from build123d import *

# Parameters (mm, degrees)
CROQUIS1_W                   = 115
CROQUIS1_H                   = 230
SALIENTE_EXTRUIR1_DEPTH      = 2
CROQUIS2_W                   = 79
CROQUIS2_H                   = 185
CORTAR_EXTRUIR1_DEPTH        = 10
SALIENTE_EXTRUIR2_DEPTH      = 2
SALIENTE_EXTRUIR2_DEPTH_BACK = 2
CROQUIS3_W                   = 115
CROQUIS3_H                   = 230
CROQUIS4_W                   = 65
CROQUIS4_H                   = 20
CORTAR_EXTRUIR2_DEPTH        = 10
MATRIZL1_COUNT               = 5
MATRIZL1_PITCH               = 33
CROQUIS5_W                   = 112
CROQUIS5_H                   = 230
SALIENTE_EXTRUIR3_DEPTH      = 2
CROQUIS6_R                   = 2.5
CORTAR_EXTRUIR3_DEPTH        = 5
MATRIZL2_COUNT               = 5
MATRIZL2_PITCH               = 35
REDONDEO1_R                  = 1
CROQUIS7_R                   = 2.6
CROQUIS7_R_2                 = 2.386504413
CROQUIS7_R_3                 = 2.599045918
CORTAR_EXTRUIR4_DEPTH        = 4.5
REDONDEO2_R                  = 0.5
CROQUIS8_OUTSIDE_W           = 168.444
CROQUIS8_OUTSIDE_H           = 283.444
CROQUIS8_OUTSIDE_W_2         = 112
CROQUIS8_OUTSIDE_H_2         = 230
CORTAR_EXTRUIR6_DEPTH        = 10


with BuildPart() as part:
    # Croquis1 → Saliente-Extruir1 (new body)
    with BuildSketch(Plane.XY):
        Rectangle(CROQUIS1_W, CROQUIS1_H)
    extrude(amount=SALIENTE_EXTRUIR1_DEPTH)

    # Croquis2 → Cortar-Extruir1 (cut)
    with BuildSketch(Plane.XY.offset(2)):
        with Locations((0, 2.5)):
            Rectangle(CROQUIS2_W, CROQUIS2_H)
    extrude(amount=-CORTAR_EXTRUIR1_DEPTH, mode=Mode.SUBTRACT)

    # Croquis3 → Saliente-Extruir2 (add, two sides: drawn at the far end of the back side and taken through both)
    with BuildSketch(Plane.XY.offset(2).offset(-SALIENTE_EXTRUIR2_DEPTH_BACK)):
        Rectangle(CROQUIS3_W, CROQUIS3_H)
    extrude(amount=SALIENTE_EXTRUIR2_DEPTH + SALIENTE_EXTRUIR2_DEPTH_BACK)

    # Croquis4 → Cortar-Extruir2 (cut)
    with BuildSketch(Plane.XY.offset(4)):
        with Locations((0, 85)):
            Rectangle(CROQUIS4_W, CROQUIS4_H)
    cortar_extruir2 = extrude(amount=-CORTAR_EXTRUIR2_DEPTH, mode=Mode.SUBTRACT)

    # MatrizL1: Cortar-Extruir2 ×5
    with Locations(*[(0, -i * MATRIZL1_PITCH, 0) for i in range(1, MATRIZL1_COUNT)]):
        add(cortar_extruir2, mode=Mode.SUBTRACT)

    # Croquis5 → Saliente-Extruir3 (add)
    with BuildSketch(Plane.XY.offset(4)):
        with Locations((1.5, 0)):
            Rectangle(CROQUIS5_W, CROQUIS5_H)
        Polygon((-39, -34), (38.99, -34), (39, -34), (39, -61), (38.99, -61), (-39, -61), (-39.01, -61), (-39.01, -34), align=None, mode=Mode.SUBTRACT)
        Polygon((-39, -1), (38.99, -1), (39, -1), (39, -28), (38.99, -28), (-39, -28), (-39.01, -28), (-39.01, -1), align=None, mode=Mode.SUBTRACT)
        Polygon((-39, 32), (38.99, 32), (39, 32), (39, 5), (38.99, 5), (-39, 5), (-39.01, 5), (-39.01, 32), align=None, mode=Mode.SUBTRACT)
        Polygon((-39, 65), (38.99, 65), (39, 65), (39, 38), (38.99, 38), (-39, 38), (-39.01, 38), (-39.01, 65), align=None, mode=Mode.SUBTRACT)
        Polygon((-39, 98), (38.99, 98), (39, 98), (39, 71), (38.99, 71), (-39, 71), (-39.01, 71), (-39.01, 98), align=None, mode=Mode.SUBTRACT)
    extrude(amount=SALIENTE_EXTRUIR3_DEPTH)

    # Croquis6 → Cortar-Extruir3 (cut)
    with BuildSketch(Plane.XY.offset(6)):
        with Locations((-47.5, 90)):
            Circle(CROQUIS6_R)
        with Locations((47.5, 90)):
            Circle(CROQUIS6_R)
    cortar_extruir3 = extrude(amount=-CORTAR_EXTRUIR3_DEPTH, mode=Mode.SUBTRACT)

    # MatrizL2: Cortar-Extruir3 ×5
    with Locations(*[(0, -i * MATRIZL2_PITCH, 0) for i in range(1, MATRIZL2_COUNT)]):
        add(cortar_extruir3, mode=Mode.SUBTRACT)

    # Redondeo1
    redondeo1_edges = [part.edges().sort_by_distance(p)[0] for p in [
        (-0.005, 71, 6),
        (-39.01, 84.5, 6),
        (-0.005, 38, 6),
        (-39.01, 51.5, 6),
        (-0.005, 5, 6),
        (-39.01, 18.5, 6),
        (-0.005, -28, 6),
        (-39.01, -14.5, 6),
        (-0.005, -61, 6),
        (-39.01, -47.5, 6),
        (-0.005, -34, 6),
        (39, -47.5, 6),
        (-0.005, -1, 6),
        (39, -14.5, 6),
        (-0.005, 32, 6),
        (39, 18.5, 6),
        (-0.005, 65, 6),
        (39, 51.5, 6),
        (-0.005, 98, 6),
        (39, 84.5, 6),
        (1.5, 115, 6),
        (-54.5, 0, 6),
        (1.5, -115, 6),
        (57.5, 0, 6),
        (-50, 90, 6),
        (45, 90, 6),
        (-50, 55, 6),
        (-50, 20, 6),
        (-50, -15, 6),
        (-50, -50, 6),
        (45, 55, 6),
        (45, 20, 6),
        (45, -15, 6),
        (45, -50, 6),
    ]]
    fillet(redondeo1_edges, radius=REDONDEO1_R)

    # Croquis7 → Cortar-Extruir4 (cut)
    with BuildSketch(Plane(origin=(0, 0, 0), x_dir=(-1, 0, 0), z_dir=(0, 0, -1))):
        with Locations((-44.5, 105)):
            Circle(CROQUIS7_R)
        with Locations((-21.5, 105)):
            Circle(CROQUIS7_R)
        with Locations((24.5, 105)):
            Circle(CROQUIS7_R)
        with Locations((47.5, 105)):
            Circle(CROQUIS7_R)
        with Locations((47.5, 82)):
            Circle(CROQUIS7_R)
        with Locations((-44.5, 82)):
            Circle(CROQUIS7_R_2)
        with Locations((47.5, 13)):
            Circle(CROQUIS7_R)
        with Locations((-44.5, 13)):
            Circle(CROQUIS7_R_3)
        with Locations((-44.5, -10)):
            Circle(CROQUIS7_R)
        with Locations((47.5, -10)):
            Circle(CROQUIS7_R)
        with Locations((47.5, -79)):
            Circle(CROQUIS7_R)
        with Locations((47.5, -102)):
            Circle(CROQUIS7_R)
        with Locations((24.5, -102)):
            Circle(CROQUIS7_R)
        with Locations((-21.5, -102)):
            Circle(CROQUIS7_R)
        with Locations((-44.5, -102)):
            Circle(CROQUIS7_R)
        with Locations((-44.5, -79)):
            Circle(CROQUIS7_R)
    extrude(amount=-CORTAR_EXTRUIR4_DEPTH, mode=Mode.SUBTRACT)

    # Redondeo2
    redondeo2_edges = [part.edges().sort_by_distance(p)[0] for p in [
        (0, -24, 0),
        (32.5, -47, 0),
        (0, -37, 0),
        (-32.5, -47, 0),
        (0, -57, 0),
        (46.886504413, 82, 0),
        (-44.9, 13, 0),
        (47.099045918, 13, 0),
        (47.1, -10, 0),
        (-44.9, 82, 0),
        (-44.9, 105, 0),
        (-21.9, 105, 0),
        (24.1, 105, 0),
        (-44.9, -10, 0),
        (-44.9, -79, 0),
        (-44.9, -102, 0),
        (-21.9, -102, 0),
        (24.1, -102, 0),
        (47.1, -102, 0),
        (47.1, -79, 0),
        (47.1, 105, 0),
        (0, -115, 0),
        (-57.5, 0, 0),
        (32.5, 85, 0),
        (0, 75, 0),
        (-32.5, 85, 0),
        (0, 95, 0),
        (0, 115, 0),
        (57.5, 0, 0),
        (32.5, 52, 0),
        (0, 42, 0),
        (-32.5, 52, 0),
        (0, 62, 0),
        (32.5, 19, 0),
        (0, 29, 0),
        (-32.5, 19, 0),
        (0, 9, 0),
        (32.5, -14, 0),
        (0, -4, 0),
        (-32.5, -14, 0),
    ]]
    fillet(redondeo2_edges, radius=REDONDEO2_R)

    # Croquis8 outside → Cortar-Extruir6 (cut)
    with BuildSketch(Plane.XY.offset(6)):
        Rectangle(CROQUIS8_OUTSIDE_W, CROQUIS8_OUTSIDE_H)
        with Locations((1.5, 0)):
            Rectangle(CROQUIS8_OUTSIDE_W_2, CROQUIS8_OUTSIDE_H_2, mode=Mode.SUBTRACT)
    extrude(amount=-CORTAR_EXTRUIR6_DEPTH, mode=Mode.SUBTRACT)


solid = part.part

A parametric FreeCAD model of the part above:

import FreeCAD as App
import Part
import Sketcher


def edges_at(feature, points):
    """Names of the edges that pass closest to the given points."""
    edges = feature.Shape.Edges
    near = lambda p: min(range(len(edges)), key=lambda i: edges[i].distToShape(Part.Vertex(*p))[0])
    return sorted({f"Edge{near(p) + 1}" for p in points})

doc = App.newDocument("Part")
body = doc.addObject("PartDesign::Body", "Body")

# Sketch on XY plane
sketch1 = body.newObject("Sketcher::SketchObject", "Sketch")
sketch1.AttachmentSupport = (doc.getObject("XY_Plane"), [""])
sketch1.MapMode = "FlatFace"
sketch1.addGeometry([
    Part.LineSegment(App.Vector(-58, 115, 0), App.Vector(-58, -115, 0)),
    Part.LineSegment(App.Vector(-58, -115, 0), App.Vector(58, -115, 0)),
    Part.LineSegment(App.Vector(58, -115, 0), App.Vector(58, 115, 0)),
    Part.LineSegment(App.Vector(58, 115, 0), App.Vector(-58, 115, 0)),
], False)
sketch1.addConstraint([
    Sketcher.Constraint("Coincident", 0, 2, 1, 1),
    Sketcher.Constraint("Coincident", 1, 2, 2, 1),
    Sketcher.Constraint("Coincident", 2, 2, 3, 1),
    Sketcher.Constraint("Coincident", 3, 2, 0, 1),
    Sketcher.Constraint("Vertical", 0),
    Sketcher.Constraint("Horizontal", 1),
    Sketcher.Constraint("Vertical", 2),
    Sketcher.Constraint("Horizontal", 3),
    Sketcher.Constraint("Symmetric", 0, 2, 2, 2, -1, 1),
    Sketcher.Constraint("DistanceX", 1, 1, 1, 2, 115.0),
    Sketcher.Constraint("DistanceY", 0, 2, 0, 1, 230.0),
])
pad1 = body.newObject("PartDesign::Pad", "Pad")
pad1.Profile = sketch1
pad1.Length = 2

# Sketch on XY plane
sketch2 = body.newObject("Sketcher::SketchObject", "Sketch001")
sketch2.AttachmentSupport = (doc.getObject("XY_Plane"), [""])
sketch2.MapMode = "FlatFace"
sketch2.AttachmentOffset = App.Placement(App.Vector(0, 0, 2), App.Rotation())
sketch2.addGeometry([
    Part.LineSegment(App.Vector(-40, 95, 0), App.Vector(-40, -90, 0)),
    Part.LineSegment(App.Vector(-40, -90, 0), App.Vector(40, -90, 0)),
    Part.LineSegment(App.Vector(40, -90, 0), App.Vector(40, 95, 0)),
    Part.LineSegment(App.Vector(40, 95, 0), App.Vector(-40, 95, 0)),
], False)
sketch2.addConstraint([
    Sketcher.Constraint("Coincident", 0, 2, 1, 1),
    Sketcher.Constraint("Coincident", 1, 2, 2, 1),
    Sketcher.Constraint("Coincident", 2, 2, 3, 1),
    Sketcher.Constraint("Coincident", 3, 2, 0, 1),
    Sketcher.Constraint("Vertical", 0),
    Sketcher.Constraint("Horizontal", 1),
    Sketcher.Constraint("Vertical", 2),
    Sketcher.Constraint("Horizontal", 3),
    Sketcher.Constraint("DistanceX", 1, 1, 1, 2, 79.0),
    Sketcher.Constraint("DistanceY", 0, 2, 0, 1, 185.0),
    Sketcher.Constraint("DistanceY", 0, 2, -1, 1, 90.0),
    Sketcher.Constraint("DistanceX", 0, 2, -1, 1, 39.5),
])
pocket1 = body.newObject("PartDesign::Pocket", "Pocket")
pocket1.Profile = sketch2
pocket1.Length = 10

# Sketch on XY plane
sketch3 = body.newObject("Sketcher::SketchObject", "Sketch002")
sketch3.AttachmentSupport = (doc.getObject("XY_Plane"), [""])
sketch3.MapMode = "FlatFace"
sketch3.AttachmentOffset = App.Placement(App.Vector(0, 0, 2), App.Rotation())
sketch3.addGeometry([
    Part.LineSegment(App.Vector(-58, 115, 0), App.Vector(-58, -115, 0)),
    Part.LineSegment(App.Vector(-58, -115, 0), App.Vector(58, -115, 0)),
    Part.LineSegment(App.Vector(58, -115, 0), App.Vector(58, 115, 0)),
    Part.LineSegment(App.Vector(58, 115, 0), App.Vector(-58, 115, 0)),
], False)
sketch3.addConstraint([
    Sketcher.Constraint("Coincident", 0, 2, 1, 1),
    Sketcher.Constraint("Coincident", 1, 2, 2, 1),
    Sketcher.Constraint("Coincident", 2, 2, 3, 1),
    Sketcher.Constraint("Coincident", 3, 2, 0, 1),
    Sketcher.Constraint("Vertical", 0),
    Sketcher.Constraint("Horizontal", 1),
    Sketcher.Constraint("Vertical", 2),
    Sketcher.Constraint("Horizontal", 3),
    Sketcher.Constraint("Symmetric", 0, 2, 2, 2, -1, 1),
    Sketcher.Constraint("DistanceX", 1, 1, 1, 2, 115.0),
    Sketcher.Constraint("DistanceY", 0, 2, 0, 1, 230.0),
])
pad2 = body.newObject("PartDesign::Pad", "Pad001")
pad2.Profile = sketch3
pad2.Type = "TwoLengths"
pad2.Length = 2
pad2.Length2 = 2

# Sketch on XY plane
sketch4 = body.newObject("Sketcher::SketchObject", "Sketch003")
sketch4.AttachmentSupport = (doc.getObject("XY_Plane"), [""])
sketch4.MapMode = "FlatFace"
sketch4.AttachmentOffset = App.Placement(App.Vector(0, 0, 4), App.Rotation())
sketch4.addGeometry([
    Part.LineSegment(App.Vector(-32, 95, 0), App.Vector(-32, 75, 0)),
    Part.LineSegment(App.Vector(-32, 75, 0), App.Vector(32, 75, 0)),
    Part.LineSegment(App.Vector(32, 75, 0), App.Vector(32, 95, 0)),
    Part.LineSegment(App.Vector(32, 95, 0), App.Vector(-32, 95, 0)),
], False)
sketch4.addConstraint([
    Sketcher.Constraint("Coincident", 0, 2, 1, 1),
    Sketcher.Constraint("Coincident", 1, 2, 2, 1),
    Sketcher.Constraint("Coincident", 2, 2, 3, 1),
    Sketcher.Constraint("Coincident", 3, 2, 0, 1),
    Sketcher.Constraint("Vertical", 0),
    Sketcher.Constraint("Horizontal", 1),
    Sketcher.Constraint("Vertical", 2),
    Sketcher.Constraint("Horizontal", 3),
    Sketcher.Constraint("DistanceX", 1, 1, 1, 2, 65.0),
    Sketcher.Constraint("DistanceY", 0, 2, 0, 1, 20.0),
    Sketcher.Constraint("DistanceY", -1, 1, 0, 2, 75.0),
    Sketcher.Constraint("DistanceX", 0, 2, -1, 1, 32.5),
])
pocket2 = body.newObject("PartDesign::Pocket", "Pocket001")
pocket2.Profile = sketch4
pocket2.Length = 10
doc.recompute()

linearpattern = body.newObject("PartDesign::LinearPattern", "LinearPattern")
linearpattern.Originals = [pocket2]
linearpattern.Direction = (doc.getObject("Y_Axis"), [""])
linearpattern.Mode = "offset"
linearpattern.Offset = 33
linearpattern.Occurrences = 5
linearpattern.Reversed = True
body.Tip = linearpattern

# Sketch on XY plane
sketch5 = body.newObject("Sketcher::SketchObject", "Sketch004")
sketch5.AttachmentSupport = (doc.getObject("XY_Plane"), [""])
sketch5.MapMode = "FlatFace"
sketch5.AttachmentOffset = App.Placement(App.Vector(0, 0, 4), App.Rotation())
sketch5.addGeometry([
    Part.LineSegment(App.Vector(-54, 115, 0), App.Vector(-54, -115, 0)),  # 0
    Part.LineSegment(App.Vector(-54, -115, 0), App.Vector(58, -115, 0)),  # 1
    Part.LineSegment(App.Vector(58, -115, 0), App.Vector(58, 115, 0)),  # 2
    Part.LineSegment(App.Vector(58, 115, 0), App.Vector(-54, 115, 0)),  # 3
    Part.LineSegment(App.Vector(-39, -34, 0), App.Vector(39, -34, 0)),  # 4
    Part.LineSegment(App.Vector(39, -34, 0), App.Vector(39, -61, 0)),  # 5
    Part.LineSegment(App.Vector(39, -61, 0), App.Vector(-39, -61, 0)),  # 6
    Part.LineSegment(App.Vector(-39, -61, 0), App.Vector(-39, -34, 0)),  # 7
    Part.LineSegment(App.Vector(-39, -1, 0), App.Vector(39, -1, 0)),  # 8
    Part.LineSegment(App.Vector(39, -1, 0), App.Vector(39, -28, 0)),  # 9
    Part.LineSegment(App.Vector(39, -28, 0), App.Vector(-39, -28, 0)),  # 10
    Part.LineSegment(App.Vector(-39, -28, 0), App.Vector(-39, -1, 0)),  # 11
    Part.LineSegment(App.Vector(-39, 32, 0), App.Vector(39, 32, 0)),  # 12
    Part.LineSegment(App.Vector(39, 32, 0), App.Vector(39, 5, 0)),  # 13
    Part.LineSegment(App.Vector(39, 5, 0), App.Vector(-39, 5, 0)),  # 14
    Part.LineSegment(App.Vector(-39, 5, 0), App.Vector(-39, 32, 0)),  # 15
    Part.LineSegment(App.Vector(-39, 65, 0), App.Vector(39, 65, 0)),  # 16
    Part.LineSegment(App.Vector(39, 65, 0), App.Vector(39, 38, 0)),  # 17
    Part.LineSegment(App.Vector(39, 38, 0), App.Vector(-39, 38, 0)),  # 18
    Part.LineSegment(App.Vector(-39, 38, 0), App.Vector(-39, 65, 0)),  # 19
    Part.LineSegment(App.Vector(-39, 98, 0), App.Vector(39, 98, 0)),  # 20
    Part.LineSegment(App.Vector(39, 98, 0), App.Vector(39, 71, 0)),  # 21
    Part.LineSegment(App.Vector(39, 71, 0), App.Vector(-39, 71, 0)),  # 22
    Part.LineSegment(App.Vector(-39, 71, 0), App.Vector(-39, 98, 0)),  # 23
], False)
sketch5.addConstraint([
    Sketcher.Constraint("Coincident", 0, 2, 1, 1),
    Sketcher.Constraint("Coincident", 1, 2, 2, 1),
    Sketcher.Constraint("Coincident", 2, 2, 3, 1),
    Sketcher.Constraint("Coincident", 3, 2, 0, 1),
    Sketcher.Constraint("Coincident", 4, 2, 5, 1),
    Sketcher.Constraint("Coincident", 5, 2, 6, 1),
    Sketcher.Constraint("Coincident", 6, 2, 7, 1),
    Sketcher.Constraint("Coincident", 7, 2, 4, 1),
    Sketcher.Constraint("Coincident", 8, 2, 9, 1),
    Sketcher.Constraint("Coincident", 9, 2, 10, 1),
    Sketcher.Constraint("Coincident", 10, 2, 11, 1),
    Sketcher.Constraint("Coincident", 11, 2, 8, 1),
    Sketcher.Constraint("Coincident", 12, 2, 13, 1),
    Sketcher.Constraint("Coincident", 13, 2, 14, 1),
    Sketcher.Constraint("Coincident", 14, 2, 15, 1),
    Sketcher.Constraint("Coincident", 15, 2, 12, 1),
    Sketcher.Constraint("Coincident", 16, 2, 17, 1),
    Sketcher.Constraint("Coincident", 17, 2, 18, 1),
    Sketcher.Constraint("Coincident", 18, 2, 19, 1),
    Sketcher.Constraint("Coincident", 19, 2, 16, 1),
    Sketcher.Constraint("Coincident", 20, 2, 21, 1),
    Sketcher.Constraint("Coincident", 21, 2, 22, 1),
    Sketcher.Constraint("Coincident", 22, 2, 23, 1),
    Sketcher.Constraint("Coincident", 23, 2, 20, 1),
    Sketcher.Constraint("Vertical", 0),
    Sketcher.Constraint("Horizontal", 1),
    Sketcher.Constraint("Vertical", 2),
    Sketcher.Constraint("Horizontal", 3),
    Sketcher.Constraint("Horizontal", 4),
    Sketcher.Constraint("Vertical", 5),
    Sketcher.Constraint("Horizontal", 6),
    Sketcher.Constraint("Vertical", 7),
    Sketcher.Constraint("Horizontal", 8),
    Sketcher.Constraint("Vertical", 9),
    Sketcher.Constraint("Horizontal", 10),
    Sketcher.Constraint("Vertical", 11),
    Sketcher.Constraint("Horizontal", 12),
    Sketcher.Constraint("Vertical", 13),
    Sketcher.Constraint("Horizontal", 14),
    Sketcher.Constraint("Vertical", 15),
    Sketcher.Constraint("Horizontal", 16),
    Sketcher.Constraint("Vertical", 17),
    Sketcher.Constraint("Horizontal", 18),
    Sketcher.Constraint("Vertical", 19),
    Sketcher.Constraint("Horizontal", 20),
    Sketcher.Constraint("Vertical", 21),
    Sketcher.Constraint("Horizontal", 22),
    Sketcher.Constraint("Vertical", 23),
    Sketcher.Constraint("Vertical", 5, 2, 8, 2),
    Sketcher.Constraint("Vertical", 7, 2, 10, 2),
    Sketcher.Constraint("Vertical", 9, 2, 12, 2),
    Sketcher.Constraint("Vertical", 11, 2, 14, 2),
    Sketcher.Constraint("Vertical", 13, 2, 16, 2),
    Sketcher.Constraint("Vertical", 15, 2, 18, 2),
    Sketcher.Constraint("Vertical", 17, 2, 20, 2),
    Sketcher.Constraint("Vertical", 19, 2, 22, 2),
    Sketcher.Constraint("Equal", 7, 9),
    Sketcher.Constraint("Equal", 11, 13),
    Sketcher.Constraint("Equal", 15, 17),
    Sketcher.Constraint("Equal", 19, 21),
    Sketcher.Constraint("DistanceX", 1, 1, 1, 2, 112.0),
    Sketcher.Constraint("DistanceY", 0, 2, 0, 1, 230.0),
    Sketcher.Constraint("DistanceY", 5, 2, 5, 1, 27.0),
    Sketcher.Constraint("DistanceY", 0, 2, -1, 1, 115.0),
    Sketcher.Constraint("DistanceX", -1, 1, 4, 2, 39.0),
    Sketcher.Constraint("DistanceY", 4, 2, -1, 1, 34.0),
    Sketcher.Constraint("DistanceY", 8, 2, -1, 1, 1.0),
    Sketcher.Constraint("DistanceY", -1, 1, 12, 2, 32.0),
    Sketcher.Constraint("DistanceY", -1, 1, 16, 2, 65.0),
    Sketcher.Constraint("DistanceY", -1, 1, 20, 2, 98.0),
    Sketcher.Constraint("DistanceX", 4, 1, 4, 2, 78.01),
    Sketcher.Constraint("DistanceX", 0, 2, -1, 1, 54.5),
])
pad3 = body.newObject("PartDesign::Pad", "Pad002")
pad3.Profile = sketch5
pad3.Length = 2

# Sketch on XY plane
sketch6 = body.newObject("Sketcher::SketchObject", "Sketch005")
sketch6.AttachmentSupport = (doc.getObject("XY_Plane"), [""])
sketch6.MapMode = "FlatFace"
sketch6.AttachmentOffset = App.Placement(App.Vector(0, 0, 6), App.Rotation())
sketch6.addGeometry([
    Part.Circle(App.Vector(-47.5, 90, 0), App.Vector(0, 0, 1), 2.5),
    Part.Circle(App.Vector(47.5, 90, 0), App.Vector(0, 0, 1), 2.5),
], False)
sketch6.addConstraint([
    Sketcher.Constraint("Equal", 0, 1),
    Sketcher.Constraint("Symmetric", 0, 3, 1, 3, -2),
    Sketcher.Constraint("Diameter", 0, 5.0),
    Sketcher.Constraint("DistanceY", -1, 1, 0, 3, 90.0),
    Sketcher.Constraint("DistanceX", 0, 3, 1, 3, 95.0),
])
pocket3 = body.newObject("PartDesign::Pocket", "Pocket002")
pocket3.Profile = sketch6
pocket3.Length = 5
doc.recompute()

linearpattern2 = body.newObject("PartDesign::LinearPattern", "LinearPattern001")
linearpattern2.Originals = [pocket3]
linearpattern2.Direction = (doc.getObject("Y_Axis"), [""])
linearpattern2.Mode = "offset"
linearpattern2.Offset = 35
linearpattern2.Occurrences = 5
linearpattern2.Reversed = True
body.Tip = linearpattern2
doc.recompute()

fillet = body.newObject("PartDesign::Fillet", "Fillet")
fillet.Base = (linearpattern2, edges_at(linearpattern2, [
    (-0.005, 71, 6),
    (-39.01, 84.5, 6),
    (-0.005, 38, 6),
    (-39.01, 51.5, 6),
    (-0.005, 5, 6),
    (-39.01, 18.5, 6),
    (-0.005, -28, 6),
    (-39.01, -14.5, 6),
    (-0.005, -61, 6),
    (-39.01, -47.5, 6),
    (-0.005, -34, 6),
    (39, -47.5, 6),
    (-0.005, -1, 6),
    (39, -14.5, 6),
    (-0.005, 32, 6),
    (39, 18.5, 6),
    (-0.005, 65, 6),
    (39, 51.5, 6),
    (-0.005, 98, 6),
    (39, 84.5, 6),
    (1.5, 115, 6),
    (-54.5, 0, 6),
    (1.5, -115, 6),
    (57.5, 0, 6),
    (-50, 90, 6),
    (45, 90, 6),
    (-50, 55, 6),
    (-50, 20, 6),
    (-50, -15, 6),
    (-50, -50, 6),
    (45, 55, 6),
    (45, 20, 6),
    (45, -15, 6),
    (45, -50, 6),
]))
fillet.Radius = 1

# Sketch on XY plane
sketch7 = body.newObject("Sketcher::SketchObject", "Sketch006")
sketch7.AttachmentSupport = (doc.getObject("XY_Plane"), [""])
sketch7.MapMode = "FlatFace"
sketch7.addGeometry([
    Part.Circle(App.Vector(44.5, 105, 0), App.Vector(0, 0, 1), 2.6),  # 0
    Part.Circle(App.Vector(21.5, 105, 0), App.Vector(0, 0, 1), 2.6),  # 1
    Part.Circle(App.Vector(-24.5, 105, 0), App.Vector(0, 0, 1), 2.6),  # 2
    Part.Circle(App.Vector(-47.5, 105, 0), App.Vector(0, 0, 1), 2.6),  # 3
    Part.Circle(App.Vector(-47.5, 82, 0), App.Vector(0, 0, 1), 2.6),  # 4
    Part.Circle(App.Vector(44.5, 82, 0), App.Vector(0, 0, 1), 2.4),  # 5
    Part.Circle(App.Vector(-47.5, 13, 0), App.Vector(0, 0, 1), 2.6),  # 6
    Part.Circle(App.Vector(44.5, 13, 0), App.Vector(0, 0, 1), 2.6),  # 7
    Part.Circle(App.Vector(44.5, -10, 0), App.Vector(0, 0, 1), 2.6),  # 8
    Part.Circle(App.Vector(-47.5, -10, 0), App.Vector(0, 0, 1), 2.6),  # 9
    Part.Circle(App.Vector(-47.5, -79, 0), App.Vector(0, 0, 1), 2.6),  # 10
    Part.Circle(App.Vector(-47.5, -102, 0), App.Vector(0, 0, 1), 2.6),  # 11
    Part.Circle(App.Vector(-24.5, -102, 0), App.Vector(0, 0, 1), 2.6),  # 12
    Part.Circle(App.Vector(21.5, -102, 0), App.Vector(0, 0, 1), 2.6),  # 13
    Part.Circle(App.Vector(44.5, -102, 0), App.Vector(0, 0, 1), 2.6),  # 14
    Part.Circle(App.Vector(44.5, -79, 0), App.Vector(0, 0, 1), 2.6),  # 15
], False)
sketch7.addConstraint([
    Sketcher.Constraint("Equal", 0, 1),
    Sketcher.Constraint("Equal", 1, 2),
    Sketcher.Constraint("Equal", 2, 3),
    Sketcher.Constraint("Equal", 3, 4),
    Sketcher.Constraint("Equal", 4, 6),
    Sketcher.Constraint("Equal", 6, 8),
    Sketcher.Constraint("Equal", 8, 9),
    Sketcher.Constraint("Equal", 9, 10),
    Sketcher.Constraint("Equal", 10, 11),
    Sketcher.Constraint("Equal", 11, 12),
    Sketcher.Constraint("Equal", 12, 13),
    Sketcher.Constraint("Equal", 13, 14),
    Sketcher.Constraint("Equal", 14, 15),
    Sketcher.Constraint("Horizontal", 0, 3, 1, 3),
    Sketcher.Constraint("Horizontal", 1, 3, 2, 3),
    Sketcher.Constraint("Horizontal", 2, 3, 3, 3),
    Sketcher.Constraint("Horizontal", 4, 3, 5, 3),
    Sketcher.Constraint("Horizontal", 6, 3, 7, 3),
    Sketcher.Constraint("Horizontal", 8, 3, 9, 3),
    Sketcher.Constraint("Horizontal", 11, 3, 12, 3),
    Sketcher.Constraint("Horizontal", 12, 3, 13, 3),
    Sketcher.Constraint("Horizontal", 13, 3, 14, 3),
    Sketcher.Constraint("Horizontal", 10, 3, 15, 3),
    Sketcher.Constraint("Vertical", 3, 3, 4, 3),
    Sketcher.Constraint("Vertical", 0, 3, 5, 3),
    Sketcher.Constraint("Vertical", 4, 3, 6, 3),
    Sketcher.Constraint("Vertical", 5, 3, 7, 3),
    Sketcher.Constraint("Vertical", 7, 3, 8, 3),
    Sketcher.Constraint("Vertical", 6, 3, 9, 3),
    Sketcher.Constraint("Vertical", 9, 3, 10, 3),
    Sketcher.Constraint("Vertical", 10, 3, 11, 3),
    Sketcher.Constraint("Vertical", 2, 3, 12, 3),
    Sketcher.Constraint("Vertical", 1, 3, 13, 3),
    Sketcher.Constraint("Vertical", 8, 3, 14, 3),
    Sketcher.Constraint("Vertical", 14, 3, 15, 3),
    Sketcher.Constraint("Diameter", 0, 5.2),
    Sketcher.Constraint("DistanceY", -1, 1, 0, 3, 105.0),
    Sketcher.Constraint("DistanceY", -1, 1, 4, 3, 82.0),
    Sketcher.Constraint("DistanceY", -1, 1, 6, 3, 13.0),
    Sketcher.Constraint("DistanceY", 8, 3, -1, 1, 10.0),
    Sketcher.Constraint("DistanceY", 10, 3, -1, 1, 79.0),
    Sketcher.Constraint("DistanceY", 11, 3, -1, 1, 102.0),
    Sketcher.Constraint("DistanceX", 1, 3, 0, 3, 23.0),
    Sketcher.Constraint("DistanceX", 2, 3, 1, 3, 46.0),
    Sketcher.Constraint("DistanceX", 3, 3, 2, 3, 23.0),
    Sketcher.Constraint("DistanceX", -1, 1, 0, 3, 44.5),
    Sketcher.Constraint("Diameter", 5, 4.773009),
    Sketcher.Constraint("Diameter", 7, 5.198092),
])
pocket4 = body.newObject("PartDesign::Pocket", "Pocket003")
pocket4.Profile = sketch7
pocket4.Length = 4.5
pocket4.Reversed = True
doc.recompute()

fillet2 = body.newObject("PartDesign::Fillet", "Fillet001")
fillet2.Base = (pocket4, edges_at(pocket4, [
    (0, -24, 0),
    (32.5, -47, 0),
    (0, -37, 0),
    (-32.5, -47, 0),
    (0, -57, 0),
    (46.887, 82, 0),
    (-44.9, 13, 0),
    (47.099, 13, 0),
    (47.1, -10, 0),
    (-44.9, 82, 0),
    (-44.9, 105, 0),
    (-21.9, 105, 0),
    (24.1, 105, 0),
    (-44.9, -10, 0),
    (-44.9, -79, 0),
    (-44.9, -102, 0),
    (-21.9, -102, 0),
    (24.1, -102, 0),
    (47.1, -102, 0),
    (47.1, -79, 0),
    (47.1, 105, 0),
    (0, -115, 0),
    (-57.5, 0, 0),
    (32.5, 85, 0),
    (0, 75, 0),
    (-32.5, 85, 0),
    (0, 95, 0),
    (0, 115, 0),
    (57.5, 0, 0),
    (32.5, 52, 0),
    (0, 42, 0),
    (-32.5, 52, 0),
    (0, 62, 0),
    (32.5, 19, 0),
    (0, 29, 0),
    (-32.5, 19, 0),
    (0, 9, 0),
    (32.5, -14, 0),
    (0, -4, 0),
    (-32.5, -14, 0),
]))
fillet2.Radius = 0.5

# Sketch on XY plane
sketch8 = body.newObject("Sketcher::SketchObject", "Sketch007")
sketch8.AttachmentSupport = (doc.getObject("XY_Plane"), [""])
sketch8.MapMode = "FlatFace"
sketch8.AttachmentOffset = App.Placement(App.Vector(0, 0, 6), App.Rotation())
sketch8.addGeometry([
    Part.LineSegment(App.Vector(-84, 142, 0), App.Vector(-84, -142, 0)),  # 0
    Part.LineSegment(App.Vector(-84, -142, 0), App.Vector(84, -142, 0)),  # 1
    Part.LineSegment(App.Vector(84, -142, 0), App.Vector(84, 142, 0)),  # 2
    Part.LineSegment(App.Vector(84, 142, 0), App.Vector(-84, 142, 0)),  # 3
    Part.LineSegment(App.Vector(58, -115, 0), App.Vector(-54, -115, 0)),  # 4
    Part.LineSegment(App.Vector(-54, -115, 0), App.Vector(-54, 115, 0)),  # 5
    Part.LineSegment(App.Vector(-54, 115, 0), App.Vector(58, 115, 0)),  # 6
    Part.LineSegment(App.Vector(58, 115, 0), App.Vector(58, -115, 0)),  # 7
], False)
sketch8.addConstraint([
    Sketcher.Constraint("Coincident", 0, 2, 1, 1),
    Sketcher.Constraint("Coincident", 1, 2, 2, 1),
    Sketcher.Constraint("Coincident", 2, 2, 3, 1),
    Sketcher.Constraint("Coincident", 3, 2, 0, 1),
    Sketcher.Constraint("Coincident", 4, 2, 5, 1),
    Sketcher.Constraint("Coincident", 5, 2, 6, 1),
    Sketcher.Constraint("Coincident", 6, 2, 7, 1),
    Sketcher.Constraint("Coincident", 7, 2, 4, 1),
    Sketcher.Constraint("Vertical", 0),
    Sketcher.Constraint("Horizontal", 1),
    Sketcher.Constraint("Vertical", 2),
    Sketcher.Constraint("Horizontal", 3),
    Sketcher.Constraint("Horizontal", 4),
    Sketcher.Constraint("Vertical", 5),
    Sketcher.Constraint("Horizontal", 6),
    Sketcher.Constraint("Vertical", 7),
    Sketcher.Constraint("Symmetric", 0, 2, 2, 2, -1, 1),
    Sketcher.Constraint("DistanceX", 4, 2, 4, 1, 112.0),
    Sketcher.Constraint("DistanceY", 5, 1, 5, 2, 230.0),
    Sketcher.Constraint("DistanceY", 4, 2, -1, 1, 115.0),
    Sketcher.Constraint("DistanceX", 4, 2, -1, 1, 54.5),
    Sketcher.Constraint("DistanceX", 1, 1, 1, 2, 168.444),
    Sketcher.Constraint("DistanceY", 0, 2, 0, 1, 283.444),
])
pocket5 = body.newObject("PartDesign::Pocket", "Pocket004")
pocket5.Profile = sketch8
pocket5.Length = 10

doc.recompute()
